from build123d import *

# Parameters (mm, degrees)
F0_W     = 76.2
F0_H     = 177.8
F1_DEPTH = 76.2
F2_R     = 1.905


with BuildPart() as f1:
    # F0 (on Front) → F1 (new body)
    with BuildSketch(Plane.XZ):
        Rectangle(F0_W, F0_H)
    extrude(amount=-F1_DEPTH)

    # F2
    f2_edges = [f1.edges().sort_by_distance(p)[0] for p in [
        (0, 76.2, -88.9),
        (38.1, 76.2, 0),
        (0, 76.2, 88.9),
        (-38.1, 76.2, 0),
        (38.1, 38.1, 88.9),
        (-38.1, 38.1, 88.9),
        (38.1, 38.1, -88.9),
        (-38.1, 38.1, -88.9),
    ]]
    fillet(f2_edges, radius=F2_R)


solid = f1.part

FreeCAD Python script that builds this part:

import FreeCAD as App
import Part
import Sketcher

V = App.Vector
Q = App.Units.Quantity


def edges_at(feature, points):
    """Names of the edges that pass closest to the given points."""
    edges = feature.Shape.Edges
    near = lambda p: min(range(len(edges)), key=lambda i: edges[i].distToShape(Part.Vertex(*p))[0])
    return sorted({f"Edge{near(p) + 1}" for p in points})


def add_polygon(sketch, points):
    """Adds a closed chain of lines whose ends are joined by coincident constraints."""
    first, n = sketch.GeometryCount, len(points)
    for a, b in zip(points, points[1:] + points[:1]):
        sketch.addGeometry(Part.LineSegment(App.Vector(*a, 0), App.Vector(*b, 0)), False)
    for i in range(n):
        sketch.addConstraint(Sketcher.Constraint("Coincident", first + i, 2, first + (i + 1) % n, 1))

doc = App.newDocument("Part")
params = doc.addObject("Spreadsheet::Sheet", "Params")
for row, (alias, value) in enumerate([
    ("sketch1_width", "3 in"),
    ("sketch1_height", "7 in"),
    ("pad1_length", "3 in"),
    ("fillet_radius", "0.075 in"),
], start=1):
    params.set(f"A{row}", alias)
    params.set(f"B{row}", "=" + value)
    params.setAlias(f"B{row}", alias)

body = doc.addObject("PartDesign::Body", "Body")

# Sketch on XZ plane
sketch1 = doc.addObject("Sketcher::SketchObject", "Sketch")
body.addObject(sketch1)
sketch1.AttachmentSupport = (doc.XZ_Plane, [""])
sketch1.MapMode = "FlatFace"
add_polygon(sketch1, [(-38.1, 88.9), (-38.1, -88.9), (38.1, -88.9), (38.1, 88.9)])  # lines 0-3
sketch1.addConstraint([
    Sketcher.Constraint("Vertical", 0),
    Sketcher.Constraint("Horizontal", 1),
    Sketcher.Constraint("Vertical", 2),
    Sketcher.Constraint("Horizontal", 3),
    Sketcher.Constraint("Symmetric", 0, 2, 2, 2, -1, 1),
    Sketcher.Constraint("DistanceX", 1, 1, 1, 2, Q("3 in")),
    Sketcher.Constraint("DistanceY", 0, 2, 0, 1, Q("7 in")),
])
sketch1.setExpression("Constraints[9]", "Params.sketch1_width")
sketch1.setExpression("Constraints[10]", "Params.sketch1_height")
pad1 = doc.addObject("PartDesign::Pad", "Pad")
body.addObject(pad1)
pad1.Profile = sketch1
pad1.setExpression("Length", "Params.pad1_length")
pad1.Reversed = True
doc.recompute()

fillet = doc.addObject("PartDesign::Fillet", "Fillet")
body.addObject(fillet)
fillet.Base = (pad1, edges_at(pad1, [
    (0, 76.2, -88.9),
    (38.1, 76.2, 0),
    (0, 76.2, 88.9),
    (-38.1, 76.2, 0),
    (38.1, 38.1, 88.9),
    (-38.1, 38.1, 88.9),
    (38.1, 38.1, -88.9),
    (-38.1, 38.1, -88.9),
]))
fillet.setExpression("Radius", "Params.fillet_radius")

doc.recompute()
